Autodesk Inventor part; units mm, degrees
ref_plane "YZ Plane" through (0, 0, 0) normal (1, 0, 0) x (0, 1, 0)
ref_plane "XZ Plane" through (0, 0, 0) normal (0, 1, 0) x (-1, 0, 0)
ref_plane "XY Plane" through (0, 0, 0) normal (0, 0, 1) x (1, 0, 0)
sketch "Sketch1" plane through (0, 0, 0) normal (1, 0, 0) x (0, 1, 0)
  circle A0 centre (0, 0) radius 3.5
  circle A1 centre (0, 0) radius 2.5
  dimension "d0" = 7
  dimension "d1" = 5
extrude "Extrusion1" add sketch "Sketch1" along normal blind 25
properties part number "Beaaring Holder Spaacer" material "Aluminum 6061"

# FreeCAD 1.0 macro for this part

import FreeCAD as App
import Part
import Sketcher
from FreeCAD import Vector

doc = App.newDocument("Part")
body = doc.addObject("PartDesign::Body", "Body")

# Sketch on YZ plane
sketch1 = body.newObject("Sketcher::SketchObject", "Sketch")
sketch1.AttachmentSupport = (doc.getObject("YZ_Plane"), [""])
sketch1.MapMode = "FlatFace"
sketch1.addGeometry([
    Part.Circle(Vector(0, 0, 0), Vector(0, 0, 1), 3.5),
    Part.Circle(Vector(0, 0, 0), Vector(0, 0, 1), 2.5),
], False)
sketch1.addConstraint([
    Sketcher.Constraint("Coincident", 0, 3, -1, 1),
    Sketcher.Constraint("Coincident", 1, 3, -1, 1),
    Sketcher.Constraint("Diameter", 0, 7.0),
    Sketcher.Constraint("Diameter", 1, 5.0),
])
pad1 = body.newObject("PartDesign::Pad", "Pad")
pad1.Profile = sketch1
pad1.Length = 25

doc.recompute()
